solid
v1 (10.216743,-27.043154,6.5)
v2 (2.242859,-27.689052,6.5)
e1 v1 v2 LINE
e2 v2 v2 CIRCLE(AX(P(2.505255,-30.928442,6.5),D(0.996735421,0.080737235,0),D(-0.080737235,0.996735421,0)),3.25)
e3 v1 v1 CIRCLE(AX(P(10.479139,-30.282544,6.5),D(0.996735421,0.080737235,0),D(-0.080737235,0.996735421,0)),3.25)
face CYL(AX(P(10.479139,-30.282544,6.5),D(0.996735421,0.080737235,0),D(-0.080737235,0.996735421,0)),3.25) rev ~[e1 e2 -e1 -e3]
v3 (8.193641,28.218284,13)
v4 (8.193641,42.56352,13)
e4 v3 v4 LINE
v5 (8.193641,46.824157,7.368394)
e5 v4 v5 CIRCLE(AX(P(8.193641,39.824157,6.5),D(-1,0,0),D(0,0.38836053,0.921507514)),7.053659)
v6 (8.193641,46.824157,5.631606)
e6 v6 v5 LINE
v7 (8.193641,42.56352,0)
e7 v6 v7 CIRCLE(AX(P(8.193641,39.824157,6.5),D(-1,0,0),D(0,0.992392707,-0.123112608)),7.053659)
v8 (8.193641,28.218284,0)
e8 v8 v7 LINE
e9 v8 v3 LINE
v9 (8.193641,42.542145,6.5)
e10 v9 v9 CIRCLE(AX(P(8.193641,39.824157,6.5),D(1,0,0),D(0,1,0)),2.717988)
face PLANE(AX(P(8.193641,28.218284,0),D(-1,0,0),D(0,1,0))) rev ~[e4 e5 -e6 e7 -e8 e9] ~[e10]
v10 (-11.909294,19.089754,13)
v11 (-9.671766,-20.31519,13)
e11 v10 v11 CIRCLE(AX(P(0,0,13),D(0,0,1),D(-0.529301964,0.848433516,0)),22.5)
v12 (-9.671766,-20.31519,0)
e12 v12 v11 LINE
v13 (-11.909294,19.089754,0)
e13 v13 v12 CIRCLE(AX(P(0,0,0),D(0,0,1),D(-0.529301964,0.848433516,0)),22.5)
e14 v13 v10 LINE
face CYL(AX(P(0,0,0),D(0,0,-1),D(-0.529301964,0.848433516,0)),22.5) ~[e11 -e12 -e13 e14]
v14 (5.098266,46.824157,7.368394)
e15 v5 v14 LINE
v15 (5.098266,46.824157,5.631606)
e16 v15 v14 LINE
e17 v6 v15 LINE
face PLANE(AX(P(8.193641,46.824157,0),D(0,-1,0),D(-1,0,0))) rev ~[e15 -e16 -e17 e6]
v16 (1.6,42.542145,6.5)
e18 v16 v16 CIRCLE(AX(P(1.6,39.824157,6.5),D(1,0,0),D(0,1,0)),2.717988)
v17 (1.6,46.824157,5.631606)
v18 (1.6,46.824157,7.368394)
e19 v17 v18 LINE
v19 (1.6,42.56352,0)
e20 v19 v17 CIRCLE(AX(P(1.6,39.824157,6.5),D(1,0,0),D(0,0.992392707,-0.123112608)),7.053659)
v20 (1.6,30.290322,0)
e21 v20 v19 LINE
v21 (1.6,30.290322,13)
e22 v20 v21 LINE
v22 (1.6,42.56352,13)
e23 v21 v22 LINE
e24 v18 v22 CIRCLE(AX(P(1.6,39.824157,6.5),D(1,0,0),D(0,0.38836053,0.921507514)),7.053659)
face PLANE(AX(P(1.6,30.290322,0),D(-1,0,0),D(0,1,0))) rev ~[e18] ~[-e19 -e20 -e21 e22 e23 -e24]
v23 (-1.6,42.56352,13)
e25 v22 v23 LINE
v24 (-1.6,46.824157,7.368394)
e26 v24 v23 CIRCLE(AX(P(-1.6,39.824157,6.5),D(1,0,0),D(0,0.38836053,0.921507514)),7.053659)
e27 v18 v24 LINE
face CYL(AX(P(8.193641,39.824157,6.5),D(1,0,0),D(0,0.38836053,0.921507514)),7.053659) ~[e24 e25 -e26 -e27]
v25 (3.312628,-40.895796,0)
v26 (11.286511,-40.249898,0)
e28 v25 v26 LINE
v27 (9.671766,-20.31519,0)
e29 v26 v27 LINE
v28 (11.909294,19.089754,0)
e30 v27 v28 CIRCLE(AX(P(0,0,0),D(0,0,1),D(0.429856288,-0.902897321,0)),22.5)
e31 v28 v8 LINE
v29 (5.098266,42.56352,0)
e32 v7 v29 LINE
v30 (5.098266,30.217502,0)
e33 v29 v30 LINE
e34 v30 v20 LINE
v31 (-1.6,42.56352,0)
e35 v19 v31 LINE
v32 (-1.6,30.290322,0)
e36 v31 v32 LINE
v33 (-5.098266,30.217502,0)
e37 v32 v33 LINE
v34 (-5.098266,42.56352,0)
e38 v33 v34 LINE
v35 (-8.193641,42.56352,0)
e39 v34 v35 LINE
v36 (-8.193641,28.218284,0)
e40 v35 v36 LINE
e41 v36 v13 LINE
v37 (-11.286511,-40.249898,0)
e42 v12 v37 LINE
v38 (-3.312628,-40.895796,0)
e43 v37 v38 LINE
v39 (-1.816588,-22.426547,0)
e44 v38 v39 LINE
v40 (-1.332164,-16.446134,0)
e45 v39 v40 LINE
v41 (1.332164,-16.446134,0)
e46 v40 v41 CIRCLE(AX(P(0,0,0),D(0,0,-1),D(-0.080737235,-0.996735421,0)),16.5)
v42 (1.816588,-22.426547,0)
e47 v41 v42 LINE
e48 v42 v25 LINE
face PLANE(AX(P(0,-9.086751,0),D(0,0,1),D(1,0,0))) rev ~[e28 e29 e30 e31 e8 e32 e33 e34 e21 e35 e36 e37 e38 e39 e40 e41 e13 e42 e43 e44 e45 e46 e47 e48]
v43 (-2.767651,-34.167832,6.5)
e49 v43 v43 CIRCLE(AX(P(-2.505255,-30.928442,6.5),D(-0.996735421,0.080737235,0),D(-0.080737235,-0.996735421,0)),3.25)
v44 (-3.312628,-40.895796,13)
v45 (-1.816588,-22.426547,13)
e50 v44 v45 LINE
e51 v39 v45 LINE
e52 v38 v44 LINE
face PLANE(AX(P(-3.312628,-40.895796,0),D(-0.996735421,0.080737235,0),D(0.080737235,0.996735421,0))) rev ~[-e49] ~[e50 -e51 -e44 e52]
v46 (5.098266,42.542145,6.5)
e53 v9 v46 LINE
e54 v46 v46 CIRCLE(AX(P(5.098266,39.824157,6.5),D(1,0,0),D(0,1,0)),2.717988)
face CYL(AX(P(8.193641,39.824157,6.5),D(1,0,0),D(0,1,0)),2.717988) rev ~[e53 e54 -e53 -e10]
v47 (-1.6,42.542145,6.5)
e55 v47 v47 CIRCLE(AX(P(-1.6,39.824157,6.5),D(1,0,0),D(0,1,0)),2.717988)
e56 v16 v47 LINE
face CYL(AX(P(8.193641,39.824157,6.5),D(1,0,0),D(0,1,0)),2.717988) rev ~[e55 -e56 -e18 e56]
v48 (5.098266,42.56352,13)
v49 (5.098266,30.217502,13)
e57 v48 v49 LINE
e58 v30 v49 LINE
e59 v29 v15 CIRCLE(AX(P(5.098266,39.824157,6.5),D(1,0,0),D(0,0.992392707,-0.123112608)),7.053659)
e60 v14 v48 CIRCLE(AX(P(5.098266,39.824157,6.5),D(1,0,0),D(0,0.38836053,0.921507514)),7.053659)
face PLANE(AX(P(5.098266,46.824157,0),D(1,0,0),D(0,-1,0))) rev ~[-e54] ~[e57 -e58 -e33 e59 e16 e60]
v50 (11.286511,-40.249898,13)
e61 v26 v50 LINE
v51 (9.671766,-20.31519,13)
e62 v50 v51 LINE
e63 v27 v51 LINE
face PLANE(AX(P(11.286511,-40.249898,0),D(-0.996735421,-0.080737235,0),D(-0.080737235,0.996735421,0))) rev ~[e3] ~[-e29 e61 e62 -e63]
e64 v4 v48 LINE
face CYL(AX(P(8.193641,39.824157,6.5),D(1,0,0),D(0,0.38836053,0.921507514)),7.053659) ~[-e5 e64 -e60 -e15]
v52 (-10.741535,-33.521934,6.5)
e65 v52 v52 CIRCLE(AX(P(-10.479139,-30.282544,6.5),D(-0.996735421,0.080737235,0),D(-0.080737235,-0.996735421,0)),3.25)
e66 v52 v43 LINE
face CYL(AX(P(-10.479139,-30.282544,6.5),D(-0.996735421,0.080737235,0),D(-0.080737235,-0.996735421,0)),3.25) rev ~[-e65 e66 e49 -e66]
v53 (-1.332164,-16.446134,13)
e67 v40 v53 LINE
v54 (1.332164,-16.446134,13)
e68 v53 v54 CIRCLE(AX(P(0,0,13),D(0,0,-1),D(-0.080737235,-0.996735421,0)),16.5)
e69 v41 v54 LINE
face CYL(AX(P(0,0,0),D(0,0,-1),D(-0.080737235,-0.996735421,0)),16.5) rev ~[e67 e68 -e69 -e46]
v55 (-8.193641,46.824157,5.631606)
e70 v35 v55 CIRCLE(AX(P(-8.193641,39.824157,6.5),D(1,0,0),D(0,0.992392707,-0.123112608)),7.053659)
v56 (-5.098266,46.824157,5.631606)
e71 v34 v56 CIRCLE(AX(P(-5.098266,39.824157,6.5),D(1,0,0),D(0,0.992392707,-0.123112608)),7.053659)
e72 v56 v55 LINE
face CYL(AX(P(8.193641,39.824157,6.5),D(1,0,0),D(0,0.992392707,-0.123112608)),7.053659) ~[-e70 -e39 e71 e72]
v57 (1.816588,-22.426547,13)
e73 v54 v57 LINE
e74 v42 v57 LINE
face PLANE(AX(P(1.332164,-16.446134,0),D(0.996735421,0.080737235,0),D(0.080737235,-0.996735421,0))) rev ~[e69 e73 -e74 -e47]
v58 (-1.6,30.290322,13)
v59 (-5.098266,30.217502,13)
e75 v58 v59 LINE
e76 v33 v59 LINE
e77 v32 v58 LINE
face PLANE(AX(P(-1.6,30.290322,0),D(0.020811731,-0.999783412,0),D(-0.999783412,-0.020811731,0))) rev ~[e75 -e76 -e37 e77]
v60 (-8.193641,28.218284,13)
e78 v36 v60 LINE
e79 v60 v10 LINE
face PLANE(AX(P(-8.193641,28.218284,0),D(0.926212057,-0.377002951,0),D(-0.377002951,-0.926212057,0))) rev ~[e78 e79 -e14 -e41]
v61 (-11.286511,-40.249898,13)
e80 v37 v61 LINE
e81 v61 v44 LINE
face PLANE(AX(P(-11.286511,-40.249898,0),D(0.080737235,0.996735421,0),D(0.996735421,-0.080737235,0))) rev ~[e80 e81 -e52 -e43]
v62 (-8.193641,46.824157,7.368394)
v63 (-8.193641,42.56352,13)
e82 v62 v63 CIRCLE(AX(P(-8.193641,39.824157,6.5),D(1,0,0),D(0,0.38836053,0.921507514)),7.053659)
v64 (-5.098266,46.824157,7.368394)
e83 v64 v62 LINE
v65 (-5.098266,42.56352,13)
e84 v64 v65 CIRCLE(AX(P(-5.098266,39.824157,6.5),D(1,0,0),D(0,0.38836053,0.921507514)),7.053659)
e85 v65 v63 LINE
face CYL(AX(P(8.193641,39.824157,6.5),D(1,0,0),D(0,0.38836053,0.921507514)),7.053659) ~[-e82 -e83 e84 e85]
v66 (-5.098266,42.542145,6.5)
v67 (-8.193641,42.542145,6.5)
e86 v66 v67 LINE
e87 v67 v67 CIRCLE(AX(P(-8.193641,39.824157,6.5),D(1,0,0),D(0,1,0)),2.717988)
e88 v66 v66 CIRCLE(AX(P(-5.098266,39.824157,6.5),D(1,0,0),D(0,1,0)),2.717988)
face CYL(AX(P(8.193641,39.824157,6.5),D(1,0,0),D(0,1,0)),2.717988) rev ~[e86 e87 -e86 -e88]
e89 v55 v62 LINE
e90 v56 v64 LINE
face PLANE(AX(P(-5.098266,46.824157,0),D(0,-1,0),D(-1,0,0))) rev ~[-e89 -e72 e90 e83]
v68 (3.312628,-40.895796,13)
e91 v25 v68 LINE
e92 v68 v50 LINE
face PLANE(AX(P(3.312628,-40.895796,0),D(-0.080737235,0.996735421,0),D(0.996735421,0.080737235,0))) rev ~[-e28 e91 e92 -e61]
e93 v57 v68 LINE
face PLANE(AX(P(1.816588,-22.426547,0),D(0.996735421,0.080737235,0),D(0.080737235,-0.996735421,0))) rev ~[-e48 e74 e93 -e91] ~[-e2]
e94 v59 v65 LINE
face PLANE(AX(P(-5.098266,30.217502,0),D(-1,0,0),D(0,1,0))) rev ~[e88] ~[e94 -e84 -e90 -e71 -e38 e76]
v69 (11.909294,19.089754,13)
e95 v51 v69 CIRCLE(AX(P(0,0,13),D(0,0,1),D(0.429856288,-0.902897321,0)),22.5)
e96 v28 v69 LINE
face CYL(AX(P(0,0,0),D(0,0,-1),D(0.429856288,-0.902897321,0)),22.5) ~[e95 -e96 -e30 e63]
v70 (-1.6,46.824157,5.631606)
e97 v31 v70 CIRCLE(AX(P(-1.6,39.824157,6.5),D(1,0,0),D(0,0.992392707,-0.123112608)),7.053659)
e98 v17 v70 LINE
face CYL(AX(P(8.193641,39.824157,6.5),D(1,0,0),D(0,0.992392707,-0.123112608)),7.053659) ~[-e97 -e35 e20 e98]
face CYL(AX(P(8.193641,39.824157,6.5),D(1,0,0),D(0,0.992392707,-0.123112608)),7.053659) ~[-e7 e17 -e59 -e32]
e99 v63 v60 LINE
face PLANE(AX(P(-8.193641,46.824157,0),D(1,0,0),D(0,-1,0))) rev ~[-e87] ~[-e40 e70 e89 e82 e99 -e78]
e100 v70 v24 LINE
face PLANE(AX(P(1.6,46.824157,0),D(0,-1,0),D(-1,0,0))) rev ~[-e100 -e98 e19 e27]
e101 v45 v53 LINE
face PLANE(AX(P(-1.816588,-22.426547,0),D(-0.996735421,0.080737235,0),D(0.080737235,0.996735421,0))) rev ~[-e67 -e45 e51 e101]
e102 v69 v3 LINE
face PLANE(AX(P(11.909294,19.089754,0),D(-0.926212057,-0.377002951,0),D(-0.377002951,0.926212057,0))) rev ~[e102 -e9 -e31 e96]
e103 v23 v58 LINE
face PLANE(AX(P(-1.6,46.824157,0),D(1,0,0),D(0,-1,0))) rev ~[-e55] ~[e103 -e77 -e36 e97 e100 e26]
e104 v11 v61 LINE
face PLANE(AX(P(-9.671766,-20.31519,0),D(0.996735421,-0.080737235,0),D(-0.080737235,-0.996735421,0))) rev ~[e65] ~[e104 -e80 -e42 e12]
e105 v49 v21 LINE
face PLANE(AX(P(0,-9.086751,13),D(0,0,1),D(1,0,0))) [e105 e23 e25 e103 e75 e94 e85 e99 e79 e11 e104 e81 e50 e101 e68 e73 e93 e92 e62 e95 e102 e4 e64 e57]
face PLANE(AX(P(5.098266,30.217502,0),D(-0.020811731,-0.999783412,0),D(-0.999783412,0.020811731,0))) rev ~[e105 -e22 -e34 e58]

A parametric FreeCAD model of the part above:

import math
import FreeCAD as App
import Part
import Sketcher

V = App.Vector
Q = App.Units.Quantity

doc = App.newDocument("Part")
params = doc.addObject("Spreadsheet::Sheet", "Params")
for row, (alias, value) in enumerate([
    ("sketch1_radius", "22.5 mm"),
    ("sketch1_radius2", "16.5 mm"),
    ("sketch1_length", "20 mm"),
    ("sketch1_length2", "8 mm"),
    ("sketch1_length3", "6 mm"),
    ("pad1_length", "13 mm"),
    ("sketch2_width", "7 mm"),
    ("pocket1_length", "17 mm"),
    ("pocket2_length", "17 mm"),
    ("sketch4_diameter", "6.5 mm"),
    ("pocket3_length", "13 mm"),
    ("sketch5_diameter", "6.5 mm"),
    ("pocket4_length", "13 mm"),
], start=1):
    params.set(f"A{row}", alias)
    params.set(f"B{row}", "=" + value)
    params.setAlias(f"B{row}", alias)

body = doc.addObject("PartDesign::Body", "Body")

# Sketch on XY plane
sketch1 = doc.addObject("Sketcher::SketchObject", "Sketch")
body.addObject(sketch1)
sketch1.AttachmentSupport = (doc.XY_Plane, [""])
sketch1.MapMode = "FlatFace"
sketch1.addGeometry([
    Part.LineSegment(V(11.286511, -40.249898, 0), V(9.671766, -20.31519, 0)),  # 0
    Part.ArcOfCircle(Part.Circle(V(0, 0, 0), V(0, 0, 1), 22.5), math.radians(-64.54156), math.radians(58.041697)),  # 1
    Part.LineSegment(V(11.909294, 19.089754, 0), V(8.193641, 28.218284, 0)),  # 2
    Part.LineSegment(V(8.193641, 28.218284, 0), V(8.193641, 46.824157, 0)),  # 3
    Part.LineSegment(V(8.193641, 46.824157, 0), V(5.098266, 46.824157, 0)),  # 4
    Part.LineSegment(V(5.098266, 46.824157, 0), V(5.098266, 30.217502, 0)),  # 5
    Part.LineSegment(V(5.098266, 30.217502, 0), V(1.6, 30.290322, 0)),  # 6
    Part.LineSegment(V(1.6, 30.290322, 0), V(1.6, 46.824157, 0)),  # 7
    Part.LineSegment(V(1.6, 46.824157, 0), V(-1.6, 46.824157, 0)),  # 8
    Part.LineSegment(V(-1.6, 46.824157, 0), V(-1.6, 30.290322, 0)),  # 9
    Part.LineSegment(V(-1.6, 30.290322, 0), V(-5.098266, 30.217502, 0)),  # 10
    Part.LineSegment(V(-5.098266, 30.217502, 0), V(-5.098266, 46.824157, 0)),  # 11
    Part.LineSegment(V(-5.098266, 46.824157, 0), V(-8.193641, 46.824157, 0)),  # 12
    Part.LineSegment(V(-8.193641, 46.824157, 0), V(-8.193641, 28.218284, 0)),  # 13
    Part.LineSegment(V(-8.193641, 28.218284, 0), V(-11.909294, 19.089754, 0)),  # 14
    Part.ArcOfCircle(Part.Circle(V(0, 0, 0), V(0, 0, 1), 22.5), math.radians(121.958303), math.radians(244.54156)),  # 15
    Part.LineSegment(V(-9.671766, -20.31519, 0), V(-11.286511, -40.249898, 0)),  # 16
    Part.LineSegment(V(-11.286511, -40.249898, 0), V(-3.312628, -40.895796, 0)),  # 17
    Part.LineSegment(V(-3.312628, -40.895796, 0), V(-1.816588, -22.426547, 0)),  # 18
    Part.LineSegment(V(-1.816588, -22.426547, 0), V(-1.332164, -16.446134, 0)),  # 19
    Part.ArcOfCircle(Part.Circle(V(0, 0, 0), V(0, 0, 1), 16.5), math.radians(-85.369057), math.radians(265.369057)),  # 20
    Part.LineSegment(V(1.332164, -16.446134, 0), V(1.816588, -22.426547, 0)),  # 21
    Part.LineSegment(V(1.816588, -22.426547, 0), V(3.312628, -40.895796, 0)),  # 22
    Part.LineSegment(V(3.312628, -40.895796, 0), V(11.286511, -40.249898, 0)),  # 23
], False)
sketch1.addConstraint([
    Sketcher.Constraint("Coincident", 0, 2, 1, 1),
    Sketcher.Constraint("Coincident", 1, 2, 2, 1),
    Sketcher.Constraint("Coincident", 2, 2, 3, 1),
    Sketcher.Constraint("Coincident", 3, 2, 4, 1),
    Sketcher.Constraint("Coincident", 4, 2, 5, 1),
    Sketcher.Constraint("Coincident", 5, 2, 6, 1),
    Sketcher.Constraint("Coincident", 6, 2, 7, 1),
    Sketcher.Constraint("Coincident", 7, 2, 8, 1),
    Sketcher.Constraint("Coincident", 8, 2, 9, 1),
    Sketcher.Constraint("Coincident", 9, 2, 10, 1),
    Sketcher.Constraint("Coincident", 10, 2, 11, 1),
    Sketcher.Constraint("Coincident", 11, 2, 12, 1),
    Sketcher.Constraint("Coincident", 12, 2, 13, 1),
    Sketcher.Constraint("Coincident", 13, 2, 14, 1),
    Sketcher.Constraint("Coincident", 14, 2, 15, 1),
    Sketcher.Constraint("Coincident", 15, 2, 16, 1),
    Sketcher.Constraint("Coincident", 16, 2, 17, 1),
    Sketcher.Constraint("Coincident", 17, 2, 18, 1),
    Sketcher.Constraint("Coincident", 18, 2, 19, 1),
    Sketcher.Constraint("Coincident", 19, 2, 20, 2),
    Sketcher.Constraint("Coincident", 20, 1, 21, 1),
    Sketcher.Constraint("Coincident", 21, 2, 22, 1),
    Sketcher.Constraint("Coincident", 22, 2, 23, 1),
    Sketcher.Constraint("Coincident", 23, 2, 0, 1),
    Sketcher.Constraint("Vertical", 3),
    Sketcher.Constraint("Horizontal", 4),
    Sketcher.Constraint("Vertical", 5),
    Sketcher.Constraint("Vertical", 7),
    Sketcher.Constraint("Horizontal", 8),
    Sketcher.Constraint("Vertical", 9),
    Sketcher.Constraint("Vertical", 11),
    Sketcher.Constraint("Horizontal", 12),
    Sketcher.Constraint("Vertical", 13),
    Sketcher.Constraint("Coincident", 1, 3, -1, 1),
    Sketcher.Constraint("Coincident", 15, 3, -1, 1),
    Sketcher.Constraint("Coincident", 20, 3, -1, 1),
    Sketcher.Constraint("Equal", 1, 15),
    Sketcher.Constraint("Symmetric", 6, 2, 9, 2, -2),
    Sketcher.Constraint("Symmetric", 5, 2, 10, 2, -2),
    Sketcher.Constraint("Symmetric", 3, 2, 12, 2, -2),
    Sketcher.Constraint("Symmetric", 18, 2, 21, 2, -2),
    Sketcher.Constraint("Symmetric", 17, 2, 22, 2, -2),
    Sketcher.Constraint("Symmetric", 16, 2, 23, 2, -2),
    Sketcher.Constraint("Perpendicular", 16, 17),
    Sketcher.Constraint("Perpendicular", 17, 18),
    Sketcher.Constraint("Parallel", 18, 19),
    Sketcher.Constraint("Parallel", 0, 21),
    Sketcher.Constraint("Parallel", 21, 22),
    Sketcher.Constraint("Horizontal", 4, 2, 7, 2),
    Sketcher.Constraint("Horizontal", 2, 2, 13, 2),
    Sketcher.Constraint("Horizontal", 1, 2, 14, 2),
    Sketcher.Constraint("Radius", 1, Q("22.5 mm")),
    Sketcher.Constraint("Radius", 20, Q("16.5 mm")),
    Sketcher.Constraint("Distance", 0, Q("20 mm")),
    Sketcher.Constraint("Distance", 17, Q("8 mm")),
    Sketcher.Constraint("Distance", 19, Q("6 mm")),
    Sketcher.Constraint("DistanceX", 8, 2, 8, 1, Q("3.2 mm")),
    Sketcher.Constraint("DistanceY", -1, 1, 5, 2, Q("30.217502 mm")),
    Sketcher.Constraint("DistanceY", 16, 2, -1, 1, Q("40.249898 mm")),
    Sketcher.Constraint("DistanceX", 18, 2, 23, 2, Q("13.103099 mm")),
    Sketcher.Constraint("DistanceX", 4, 2, 4, 1, Q("3.095375 mm")),
    Sketcher.Constraint("DistanceY", 3, 1, 3, 2, Q("18.605873 mm")),
    Sketcher.Constraint("DistanceY", 5, 2, 5, 1, Q("16.606656 mm")),
    Sketcher.Constraint("DistanceY", 7, 1, 7, 2, Q("16.533835 mm")),
    Sketcher.Constraint("DistanceX", -1, 1, 2, 2, Q("8.193641 mm")),
    Sketcher.Constraint("DistanceY", 1, 2, 2, 2, Q("9.12853 mm")),
])
sketch1.setExpression("Constraints[51]", "Params.sketch1_radius")
sketch1.setExpression("Constraints[52]", "Params.sketch1_radius2")
sketch1.setExpression("Constraints[53]", "Params.sketch1_length")
sketch1.setExpression("Constraints[54]", "Params.sketch1_length2")
sketch1.setExpression("Constraints[55]", "Params.sketch1_length3")
pad1 = doc.addObject("PartDesign::Pad", "Pad")
body.addObject(pad1)
pad1.Profile = sketch1
pad1.setExpression("Length", "Params.pad1_length")

# Sketch on YZ plane
sketch2 = doc.addObject("Sketcher::SketchObject", "Sketch001")
body.addObject(sketch2)
sketch2.AttachmentSupport = (doc.YZ_Plane, [""])
sketch2.MapMode = "FlatFace"
sketch2.AttachmentOffset = App.Placement(V(0, 0, 8.193641), App.Rotation())
sketch2.addGeometry([
    Part.ArcOfCircle(Part.Circle(V(39.824157, 6.5, 0), V(0, 0, 1), 7.053659), math.radians(7.071774), math.radians(67.147475)),  # 0
    Part.LineSegment(V(46.824157, 7.368394, 0), V(46.824157, 13, 0)),  # 1
    Part.LineSegment(V(46.824157, 13, 0), V(42.56352, 13, 0)),  # 2
    Part.LineSegment(V(46.824157, 0, 0), V(46.824157, 5.631606, 0)),  # 3
    Part.ArcOfCircle(Part.Circle(V(39.824157, 6.5, 0), V(0, 0, 1), 7.053659), math.radians(-67.147475), math.radians(-7.071774)),  # 4
    Part.LineSegment(V(42.56352, 0, 0), V(46.824157, 0, 0)),  # 5
], False)
sketch2.addConstraint([
    Sketcher.Constraint("Coincident", 0, 1, 1, 1),
    Sketcher.Constraint("Coincident", 1, 2, 2, 1),
    Sketcher.Constraint("Coincident", 2, 2, 0, 2),
    Sketcher.Constraint("Coincident", 3, 2, 4, 2),
    Sketcher.Constraint("Coincident", 4, 1, 5, 1),
    Sketcher.Constraint("Coincident", 5, 2, 3, 1),
    Sketcher.Constraint("Vertical", 1),
    Sketcher.Constraint("Horizontal", 2),
    Sketcher.Constraint("Vertical", 3),
    Sketcher.Constraint("Horizontal", 5),
    Sketcher.Constraint("Coincident", 4, 3, 0, 3),
    Sketcher.Constraint("Equal", 0, 4),
    Sketcher.Constraint("PointOnObject", 4, 1, -1),
    Sketcher.Constraint("Vertical", 1, 2, 3, 2),
    Sketcher.Constraint("Vertical", 2, 2, 4, 1),
    Sketcher.Constraint("DistanceY", -1, 1, 1, 2, Q("13 mm")),
    Sketcher.Constraint("DistanceX", 0, 3, 0, 1, Q("7 mm")),
    Sketcher.Constraint("Radius", 0, Q("7.053659 mm")),
    Sketcher.Constraint("DistanceX", -1, 1, 2, 2, Q("42.56352 mm")),
])
sketch2.setExpression("Constraints[16]", "Params.sketch2_width")
pocket1 = doc.addObject("PartDesign::Pocket", "Pocket")
body.addObject(pocket1)
pocket1.Profile = sketch2
pocket1.setExpression("Length", "Params.pocket1_length")

# Sketch on YZ plane
sketch3 = doc.addObject("Sketcher::SketchObject", "Sketch002")
body.addObject(sketch3)
sketch3.AttachmentSupport = (doc.YZ_Plane, [""])
sketch3.MapMode = "FlatFace"
sketch3.AttachmentOffset = App.Placement(V(0, 0, 8.193641), App.Rotation())
sketch3.addGeometry(Part.Circle(V(39.824157, 6.5, 0), V(0, 0, 1), 2.717988), False)
sketch3.addConstraint([
    Sketcher.Constraint("DistanceY", -1, 1, 0, 3, Q("6.5 mm")),
    Sketcher.Constraint("Diameter", 0, Q("5.435976 mm")),
    Sketcher.Constraint("DistanceX", -1, 1, 0, 3, Q("39.824157 mm")),
])
pocket2 = doc.addObject("PartDesign::Pocket", "Pocket001")
body.addObject(pocket2)
pocket2.Profile = sketch3
pocket2.setExpression("Length", "Params.pocket2_length")

# Sketch on an angled plane
sketch4 = doc.addObject("Sketcher::SketchObject", "Sketch003")
body.addObject(sketch4)
sketch4.Placement = App.Placement(V(7.973883, 0.645898, 0), App.Rotation(V(-0.080737235, 0.996735421, 0), V(0, 0, 1.000000001), V(0.996735421, 0.080737235, 0), "ZXY"))
sketch4.addGeometry(Part.Circle(V(-31.029741, 6.5, 0), V(0, 0, 1), 3.25), False)
sketch4.addConstraint([
    Sketcher.Constraint("Diameter", 0, Q("6.5 mm")),
    Sketcher.Constraint("DistanceY", -1, 1, 0, 3, Q("6.5 mm")),
    Sketcher.Constraint("DistanceX", 0, 3, -1, 1, Q("31.029741 mm")),
])
sketch4.setExpression("Constraints[0]", "Params.sketch4_diameter")
pocket3 = doc.addObject("PartDesign::Pocket", "Pocket002")
body.addObject(pocket3)
pocket3.Profile = sketch4
pocket3.setExpression("Length", "Params.pocket3_length")

# Sketch on an angled plane
sketch5 = doc.addObject("Sketcher::SketchObject", "Sketch004")
body.addObject(sketch5)
sketch5.Placement = App.Placement(V(-7.973883, 0.645898, 0), App.Rotation(V(-0.080737235, -0.996735421, 0), V(0, 0, 1.000000001), V(-0.996735421, 0.080737235, 0), "ZXY"))
sketch5.addGeometry(Part.Circle(V(31.029741, 6.5, 0), V(0, 0, 1), 3.25), False)
sketch5.addConstraint([
    Sketcher.Constraint("Diameter", 0, Q("6.5 mm")),
    Sketcher.Constraint("DistanceY", -1, 1, 0, 3, Q("6.5 mm")),
    Sketcher.Constraint("DistanceX", -1, 1, 0, 3, Q("31.029741 mm")),
])
sketch5.setExpression("Constraints[0]", "Params.sketch5_diameter")
pocket4 = doc.addObject("PartDesign::Pocket", "Pocket003")
body.addObject(pocket4)
pocket4.Profile = sketch5
pocket4.setExpression("Length", "Params.pocket4_length")

doc.recompute()
